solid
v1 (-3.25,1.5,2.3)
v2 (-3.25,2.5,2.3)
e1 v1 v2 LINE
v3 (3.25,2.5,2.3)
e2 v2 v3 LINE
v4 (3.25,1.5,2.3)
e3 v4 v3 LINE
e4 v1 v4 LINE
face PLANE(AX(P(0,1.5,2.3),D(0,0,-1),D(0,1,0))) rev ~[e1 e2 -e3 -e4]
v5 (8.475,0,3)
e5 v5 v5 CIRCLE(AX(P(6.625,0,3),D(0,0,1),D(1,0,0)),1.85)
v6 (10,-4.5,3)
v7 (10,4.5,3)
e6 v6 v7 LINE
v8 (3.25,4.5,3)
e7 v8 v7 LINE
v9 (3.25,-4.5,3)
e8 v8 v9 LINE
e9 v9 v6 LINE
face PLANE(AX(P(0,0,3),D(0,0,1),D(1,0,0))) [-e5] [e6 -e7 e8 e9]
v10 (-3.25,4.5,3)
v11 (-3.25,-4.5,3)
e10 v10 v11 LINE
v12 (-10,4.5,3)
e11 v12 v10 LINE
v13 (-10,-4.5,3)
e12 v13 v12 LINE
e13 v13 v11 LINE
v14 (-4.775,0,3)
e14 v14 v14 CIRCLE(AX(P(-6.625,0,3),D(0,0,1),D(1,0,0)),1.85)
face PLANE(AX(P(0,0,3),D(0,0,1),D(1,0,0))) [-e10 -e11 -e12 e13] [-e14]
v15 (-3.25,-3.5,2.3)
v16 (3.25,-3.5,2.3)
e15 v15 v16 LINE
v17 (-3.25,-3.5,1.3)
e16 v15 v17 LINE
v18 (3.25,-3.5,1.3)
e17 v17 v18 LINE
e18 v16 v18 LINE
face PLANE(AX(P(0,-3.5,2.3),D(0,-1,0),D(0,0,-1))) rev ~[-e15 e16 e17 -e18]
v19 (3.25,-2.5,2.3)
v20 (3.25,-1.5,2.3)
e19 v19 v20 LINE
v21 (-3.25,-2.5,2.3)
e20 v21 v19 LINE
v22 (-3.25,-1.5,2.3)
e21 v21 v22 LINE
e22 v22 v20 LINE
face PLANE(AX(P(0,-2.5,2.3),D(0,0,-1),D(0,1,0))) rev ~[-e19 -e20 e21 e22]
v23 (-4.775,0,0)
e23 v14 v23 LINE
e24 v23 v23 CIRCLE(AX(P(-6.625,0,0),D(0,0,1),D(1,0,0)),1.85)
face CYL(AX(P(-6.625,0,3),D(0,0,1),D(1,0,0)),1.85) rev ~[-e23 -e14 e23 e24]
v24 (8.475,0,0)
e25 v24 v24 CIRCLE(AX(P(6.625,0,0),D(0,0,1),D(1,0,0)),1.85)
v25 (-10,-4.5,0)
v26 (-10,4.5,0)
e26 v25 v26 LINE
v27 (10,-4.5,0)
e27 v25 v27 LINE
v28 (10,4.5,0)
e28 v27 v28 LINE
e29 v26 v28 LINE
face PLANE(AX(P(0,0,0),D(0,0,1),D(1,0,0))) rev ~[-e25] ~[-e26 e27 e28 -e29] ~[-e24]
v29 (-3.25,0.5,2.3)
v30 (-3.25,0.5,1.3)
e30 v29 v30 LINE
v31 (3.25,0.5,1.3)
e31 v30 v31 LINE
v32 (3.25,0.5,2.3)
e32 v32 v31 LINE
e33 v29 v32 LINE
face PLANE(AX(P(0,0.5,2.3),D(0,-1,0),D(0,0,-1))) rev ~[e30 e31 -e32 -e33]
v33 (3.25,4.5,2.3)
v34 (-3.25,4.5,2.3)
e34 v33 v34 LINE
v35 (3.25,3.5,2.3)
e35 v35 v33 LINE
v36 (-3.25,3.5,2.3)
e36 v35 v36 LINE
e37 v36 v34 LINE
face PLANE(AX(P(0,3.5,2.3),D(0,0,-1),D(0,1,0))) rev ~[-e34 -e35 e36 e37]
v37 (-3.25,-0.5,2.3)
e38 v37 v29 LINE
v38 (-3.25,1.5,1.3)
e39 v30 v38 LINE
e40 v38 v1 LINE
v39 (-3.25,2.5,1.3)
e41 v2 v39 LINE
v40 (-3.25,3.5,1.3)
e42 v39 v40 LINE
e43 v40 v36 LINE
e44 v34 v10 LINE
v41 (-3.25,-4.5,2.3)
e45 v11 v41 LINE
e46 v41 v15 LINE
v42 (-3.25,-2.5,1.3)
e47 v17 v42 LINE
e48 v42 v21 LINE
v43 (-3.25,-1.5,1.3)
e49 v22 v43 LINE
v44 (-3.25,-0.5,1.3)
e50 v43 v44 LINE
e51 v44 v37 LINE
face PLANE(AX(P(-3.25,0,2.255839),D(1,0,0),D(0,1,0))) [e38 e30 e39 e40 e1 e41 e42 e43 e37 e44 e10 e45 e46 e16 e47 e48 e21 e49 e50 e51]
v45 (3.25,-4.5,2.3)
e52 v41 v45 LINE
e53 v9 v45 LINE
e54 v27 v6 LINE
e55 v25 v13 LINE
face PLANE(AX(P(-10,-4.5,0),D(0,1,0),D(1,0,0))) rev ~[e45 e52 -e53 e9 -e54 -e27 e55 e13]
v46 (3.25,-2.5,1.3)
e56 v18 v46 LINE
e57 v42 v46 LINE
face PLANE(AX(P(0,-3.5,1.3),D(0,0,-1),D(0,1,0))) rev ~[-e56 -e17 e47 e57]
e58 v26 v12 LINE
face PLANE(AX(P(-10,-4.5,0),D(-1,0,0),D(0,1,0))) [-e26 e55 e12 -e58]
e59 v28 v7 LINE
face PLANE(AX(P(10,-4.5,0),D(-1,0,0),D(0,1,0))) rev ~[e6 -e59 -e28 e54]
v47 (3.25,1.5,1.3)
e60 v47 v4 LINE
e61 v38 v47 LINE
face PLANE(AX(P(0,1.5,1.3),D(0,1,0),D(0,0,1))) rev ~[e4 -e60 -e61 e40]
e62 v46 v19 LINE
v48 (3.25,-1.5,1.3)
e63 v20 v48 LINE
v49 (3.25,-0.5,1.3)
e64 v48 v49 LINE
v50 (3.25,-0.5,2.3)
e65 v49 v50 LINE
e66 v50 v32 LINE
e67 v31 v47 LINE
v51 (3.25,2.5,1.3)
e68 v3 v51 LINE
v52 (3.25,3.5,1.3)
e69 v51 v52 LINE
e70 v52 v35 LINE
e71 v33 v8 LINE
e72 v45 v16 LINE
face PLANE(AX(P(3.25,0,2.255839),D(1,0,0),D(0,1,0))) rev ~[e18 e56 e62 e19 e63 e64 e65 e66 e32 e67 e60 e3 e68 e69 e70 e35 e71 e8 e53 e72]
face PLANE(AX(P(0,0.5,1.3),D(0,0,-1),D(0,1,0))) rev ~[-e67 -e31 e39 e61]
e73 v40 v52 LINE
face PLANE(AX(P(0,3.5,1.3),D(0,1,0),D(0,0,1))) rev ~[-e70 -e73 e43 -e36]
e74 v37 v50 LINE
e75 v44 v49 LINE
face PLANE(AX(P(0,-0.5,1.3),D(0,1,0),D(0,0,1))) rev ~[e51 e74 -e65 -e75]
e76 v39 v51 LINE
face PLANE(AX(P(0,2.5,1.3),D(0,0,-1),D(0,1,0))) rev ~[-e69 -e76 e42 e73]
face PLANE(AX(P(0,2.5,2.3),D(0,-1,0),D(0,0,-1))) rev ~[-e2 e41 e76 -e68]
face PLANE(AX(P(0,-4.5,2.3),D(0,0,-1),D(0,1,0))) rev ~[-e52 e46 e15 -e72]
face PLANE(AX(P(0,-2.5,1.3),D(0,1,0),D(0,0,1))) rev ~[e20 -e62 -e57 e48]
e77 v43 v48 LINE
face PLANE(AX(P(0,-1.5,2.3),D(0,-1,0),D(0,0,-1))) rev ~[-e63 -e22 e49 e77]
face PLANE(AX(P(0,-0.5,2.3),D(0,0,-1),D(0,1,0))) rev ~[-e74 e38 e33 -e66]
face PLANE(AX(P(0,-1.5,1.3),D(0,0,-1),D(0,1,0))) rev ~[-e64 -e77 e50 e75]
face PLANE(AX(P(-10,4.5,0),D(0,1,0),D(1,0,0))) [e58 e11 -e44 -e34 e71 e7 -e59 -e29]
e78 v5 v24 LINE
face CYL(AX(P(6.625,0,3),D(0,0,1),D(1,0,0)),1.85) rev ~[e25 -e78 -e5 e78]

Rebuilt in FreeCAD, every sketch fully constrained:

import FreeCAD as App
import Part
import Sketcher

V = App.Vector
Q = App.Units.Quantity


def add_polygon(sketch, points):
    """Adds a closed chain of lines whose ends are joined by coincident constraints."""
    first, n = sketch.GeometryCount, len(points)
    for a, b in zip(points, points[1:] + points[:1]):
        sketch.addGeometry(Part.LineSegment(App.Vector(*a, 0), App.Vector(*b, 0)), False)
    for i in range(n):
        sketch.addConstraint(Sketcher.Constraint("Coincident", first + i, 2, first + (i + 1) % n, 1))

doc = App.newDocument("Part")
body = doc.addObject("PartDesign::Body", "Body")

# Sketch on XY plane
sketch1 = doc.addObject("Sketcher::SketchObject", "Sketch")
body.addObject(sketch1)
sketch1.AttachmentSupport = (doc.XY_Plane, [""])
sketch1.MapMode = "FlatFace"
add_polygon(sketch1, [(-10, 4.5), (-10, -4.5), (10, -4.5), (10, 4.5)])  # lines 0-3
sketch1.addConstraint([
    Sketcher.Constraint("Vertical", 0),
    Sketcher.Constraint("Horizontal", 1),
    Sketcher.Constraint("Vertical", 2),
    Sketcher.Constraint("Horizontal", 3),
    Sketcher.Constraint("Symmetric", 0, 2, 2, 2, -1, 1),
    Sketcher.Constraint("DistanceX", 1, 1, 1, 2, Q("20 mm")),
    Sketcher.Constraint("DistanceY", 0, 2, 0, 1, Q("9 mm")),
])
pad1 = doc.addObject("PartDesign::Pad", "Pad")
body.addObject(pad1)
pad1.Profile = sketch1
pad1.Length = 3

# Sketch on YZ plane
sketch2 = doc.addObject("Sketcher::SketchObject", "Sketch001")
body.addObject(sketch2)
sketch2.AttachmentSupport = (doc.YZ_Plane, [""])
sketch2.MapMode = "FlatFace"
add_polygon(sketch2, [(4.5, 3), (-4.5, 3), (-4.5, 2.3), (-3.5, 2.3), (-3.5, 1.3), (-2.5, 1.3), (-2.5, 2.3), (-1.5, 2.3), (-1.5, 1.3), (-0.5, 1.3), (-0.5, 2.3), (0.5, 2.3), (0.5, 1.3), (1.5, 1.3), (1.5, 2.3), (2.5, 2.3), (2.5, 1.3), (3.5, 1.3), (3.5, 2.3), (4.5, 2.3)])  # lines 0-19
sketch2.addConstraint([
    Sketcher.Constraint("Horizontal", 0),
    Sketcher.Constraint("Vertical", 1),
    Sketcher.Constraint("Horizontal", 2),
    Sketcher.Constraint("Vertical", 3),
    Sketcher.Constraint("Horizontal", 4),
    Sketcher.Constraint("Vertical", 5),
    Sketcher.Constraint("Horizontal", 6),
    Sketcher.Constraint("Vertical", 7),
    Sketcher.Constraint("Horizontal", 8),
    Sketcher.Constraint("Vertical", 9),
    Sketcher.Constraint("Horizontal", 10),
    Sketcher.Constraint("Vertical", 11),
    Sketcher.Constraint("Horizontal", 12),
    Sketcher.Constraint("Vertical", 13),
    Sketcher.Constraint("Horizontal", 14),
    Sketcher.Constraint("Vertical", 15),
    Sketcher.Constraint("Horizontal", 16),
    Sketcher.Constraint("Vertical", 17),
    Sketcher.Constraint("Horizontal", 18),
    Sketcher.Constraint("Vertical", 19),
    Sketcher.Constraint("Symmetric", 8, 2, 11, 2, -2),
    Sketcher.Constraint("Symmetric", 6, 2, 13, 2, -2),
    Sketcher.Constraint("Symmetric", 4, 2, 15, 2, -2),
    Sketcher.Constraint("Symmetric", 2, 2, 17, 2, -2),
    Sketcher.Constraint("Horizontal", 2, 2, 5, 2),
    Sketcher.Constraint("Horizontal", 4, 2, 7, 2),
    Sketcher.Constraint("Horizontal", 6, 2, 9, 2),
    Sketcher.Constraint("Equal", 2, 4),
    Sketcher.Constraint("Equal", 4, 6),
    Sketcher.Constraint("Equal", 6, 8),
    Sketcher.Constraint("Equal", 8, 10),
    Sketcher.Constraint("Equal", 16, 18),
    Sketcher.Constraint("Equal", 18, 3),
    Sketcher.Constraint("DistanceX", 0, 2, 0, 1, Q("9 mm")),
    Sketcher.Constraint("DistanceY", 1, 2, 1, 1, Q("0.7 mm")),
    Sketcher.Constraint("DistanceY", -1, 1, 0, 2, Q("3 mm")),
])
pocket1 = doc.addObject("PartDesign::Pocket", "Pocket")
body.addObject(pocket1)
pocket1.Profile = sketch2
pocket1.Length = 6.5
pocket1.Midplane = True

# Sketch on XY plane
sketch3 = doc.addObject("Sketcher::SketchObject", "Sketch002")
body.addObject(sketch3)
sketch3.AttachmentSupport = (doc.XY_Plane, [""])
sketch3.MapMode = "FlatFace"
sketch3.AttachmentOffset = App.Placement(V(0, 0, 3), App.Rotation())
sketch3.addGeometry([
    Part.Circle(V(-6.625, 0, 0), V(0, 0, 1), 1.85),
    Part.Circle(V(6.625, 0, 0), V(0, 0, 1), 1.85),
], False)
sketch3.addConstraint([
    Sketcher.Constraint("Equal", 0, 1),
    Sketcher.Constraint("Symmetric", 0, 3, 1, 3, -1, 1),
    Sketcher.Constraint("PointOnObject", 0, 3, -1),
    Sketcher.Constraint("Diameter", 0, Q("3.7 mm")),
    Sketcher.Constraint("DistanceX", 0, 3, 1, 3, Q("13.25 mm")),
])
pocket2 = doc.addObject("PartDesign::Pocket", "Pocket001")
body.addObject(pocket2)
pocket2.Profile = sketch3
pocket2.Length = 25

doc.recompute()
